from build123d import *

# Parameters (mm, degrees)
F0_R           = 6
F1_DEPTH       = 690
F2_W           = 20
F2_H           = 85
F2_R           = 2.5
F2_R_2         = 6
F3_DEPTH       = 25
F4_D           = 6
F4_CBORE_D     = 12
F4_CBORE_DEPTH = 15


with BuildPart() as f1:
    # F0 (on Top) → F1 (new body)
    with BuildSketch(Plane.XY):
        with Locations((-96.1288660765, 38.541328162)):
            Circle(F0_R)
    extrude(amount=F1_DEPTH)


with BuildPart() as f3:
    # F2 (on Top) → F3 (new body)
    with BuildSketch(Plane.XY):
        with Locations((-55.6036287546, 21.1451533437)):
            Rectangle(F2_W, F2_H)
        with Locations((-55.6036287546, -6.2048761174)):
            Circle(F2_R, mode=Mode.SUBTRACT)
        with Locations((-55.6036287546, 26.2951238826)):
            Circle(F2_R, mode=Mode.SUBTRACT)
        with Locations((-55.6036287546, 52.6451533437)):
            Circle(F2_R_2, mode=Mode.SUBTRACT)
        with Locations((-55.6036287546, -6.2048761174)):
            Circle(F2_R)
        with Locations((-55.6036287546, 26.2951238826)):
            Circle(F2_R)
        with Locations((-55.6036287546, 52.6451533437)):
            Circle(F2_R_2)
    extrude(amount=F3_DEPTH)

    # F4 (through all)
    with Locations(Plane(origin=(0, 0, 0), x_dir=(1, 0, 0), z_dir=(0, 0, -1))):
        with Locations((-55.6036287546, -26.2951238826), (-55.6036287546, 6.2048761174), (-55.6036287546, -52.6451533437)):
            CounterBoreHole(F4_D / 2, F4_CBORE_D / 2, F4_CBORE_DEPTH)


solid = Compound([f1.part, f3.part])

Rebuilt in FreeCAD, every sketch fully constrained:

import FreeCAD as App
import Part
import Sketcher

V = App.Vector


def add_polygon(sketch, points):
    """Adds a closed chain of lines whose ends are joined by coincident constraints."""
    first, n = sketch.GeometryCount, len(points)
    for a, b in zip(points, points[1:] + points[:1]):
        sketch.addGeometry(Part.LineSegment(App.Vector(*a, 0), App.Vector(*b, 0)), False)
    for i in range(n):
        sketch.addConstraint(Sketcher.Constraint("Coincident", first + i, 2, first + (i + 1) % n, 1))

doc = App.newDocument("Part")
body = doc.addObject("PartDesign::Body", "Body")

sketch1 = doc.addObject("Sketcher::SketchObject", "Sketch")
body.addObject(sketch1)
sketch1.AttachmentSupport = (doc.XY_Plane, [""])
sketch1.MapMode = "FlatFace"
sketch1.addGeometry(Part.Circle(V(-96, 39, 0), V(0, 0, 1), 6), False)
sketch1.addConstraint(Sketcher.Constraint("Diameter", 0, 12.0))
sketch1.addConstraint(Sketcher.Constraint("DistanceY", -1, 1, 0, 3, 38.541328))
sketch1.addConstraint(Sketcher.Constraint("DistanceX", 0, 3, -1, 1, 96.128866))
pad1 = doc.addObject("PartDesign::Pad", "Pad")
body.addObject(pad1)
pad1.Profile = sketch1
pad1.Length = 690
body2 = doc.addObject("PartDesign::Body", "Body001")

sketch2 = doc.addObject("Sketcher::SketchObject", "Sketch001")
body2.addObject(sketch2)
sketch2.AttachmentSupport = (doc.getObject("XY_Plane001"), [""])
sketch2.MapMode = "FlatFace"
add_polygon(sketch2, [(-66, 64), (-66, -21), (-46, -21), (-46, 64)])
sketch2.addConstraint(Sketcher.Constraint("Vertical", 0))
sketch2.addConstraint(Sketcher.Constraint("Horizontal", 1))
sketch2.addConstraint(Sketcher.Constraint("Vertical", 2))
sketch2.addConstraint(Sketcher.Constraint("Horizontal", 3))
sketch2.addConstraint(Sketcher.Constraint("DistanceX", 1, 1, 1, 2, 20.0))
sketch2.addConstraint(Sketcher.Constraint("DistanceY", 0, 2, 0, 1, 85.0))
sketch2.addConstraint(Sketcher.Constraint("DistanceX", 0, 2, -1, 1, 65.603629))
sketch2.addConstraint(Sketcher.Constraint("DistanceY", 0, 2, -1, 1, 21.354847))
pad2 = doc.addObject("PartDesign::Pad", "Pad001")
body2.addObject(pad2)
pad2.Profile = sketch2
pad2.Length = 25

sketch3 = doc.addObject("Sketcher::SketchObject", "Sketch002")
body2.addObject(sketch3)
sketch3.AttachmentSupport = (doc.getObject("XY_Plane001"), [""])
sketch3.MapMode = "FlatFace"
sketch3.addGeometry(Part.Circle(V(-55.6, 26.3, 0), V(0, 0, 1), 3), False)
sketch3.addGeometry(Part.Circle(V(-55.6, -6.2, 0), V(0, 0, 1), 3), False)
sketch3.addGeometry(Part.Circle(V(-55.6, 52.6, 0), V(0, 0, 1), 3), False)
sketch3.addConstraint(Sketcher.Constraint("Equal", 0, 1))
sketch3.addConstraint(Sketcher.Constraint("Equal", 1, 2))
sketch3.addConstraint(Sketcher.Constraint("Vertical", 0, 3, 1, 3))
sketch3.addConstraint(Sketcher.Constraint("Vertical", 1, 3, 2, 3))
sketch3.addConstraint(Sketcher.Constraint("Diameter", 0, 6.0))
sketch3.addConstraint(Sketcher.Constraint("DistanceY", 1, 3, 0, 3, 32.5))
sketch3.addConstraint(Sketcher.Constraint("DistanceX", 0, 3, -1, 1, 55.603629))
sketch3.addConstraint(Sketcher.Constraint("DistanceY", 0, 3, 2, 3, 26.350029))
sketch3.addConstraint(Sketcher.Constraint("DistanceY", -1, 1, 0, 3, 26.295124))
doc.recompute()
hole = doc.addObject("PartDesign::Hole", "Hole")
body2.addObject(hole)
hole.Profile = sketch3
hole.ThreadType = "None"
hole.Diameter = 6
hole.DepthType = "ThroughAll"
hole.HoleCutType = "Counterbore"
hole.HoleCutDiameter = 12
hole.HoleCutDepth = 15
hole.Reversed = True

doc.recompute()
